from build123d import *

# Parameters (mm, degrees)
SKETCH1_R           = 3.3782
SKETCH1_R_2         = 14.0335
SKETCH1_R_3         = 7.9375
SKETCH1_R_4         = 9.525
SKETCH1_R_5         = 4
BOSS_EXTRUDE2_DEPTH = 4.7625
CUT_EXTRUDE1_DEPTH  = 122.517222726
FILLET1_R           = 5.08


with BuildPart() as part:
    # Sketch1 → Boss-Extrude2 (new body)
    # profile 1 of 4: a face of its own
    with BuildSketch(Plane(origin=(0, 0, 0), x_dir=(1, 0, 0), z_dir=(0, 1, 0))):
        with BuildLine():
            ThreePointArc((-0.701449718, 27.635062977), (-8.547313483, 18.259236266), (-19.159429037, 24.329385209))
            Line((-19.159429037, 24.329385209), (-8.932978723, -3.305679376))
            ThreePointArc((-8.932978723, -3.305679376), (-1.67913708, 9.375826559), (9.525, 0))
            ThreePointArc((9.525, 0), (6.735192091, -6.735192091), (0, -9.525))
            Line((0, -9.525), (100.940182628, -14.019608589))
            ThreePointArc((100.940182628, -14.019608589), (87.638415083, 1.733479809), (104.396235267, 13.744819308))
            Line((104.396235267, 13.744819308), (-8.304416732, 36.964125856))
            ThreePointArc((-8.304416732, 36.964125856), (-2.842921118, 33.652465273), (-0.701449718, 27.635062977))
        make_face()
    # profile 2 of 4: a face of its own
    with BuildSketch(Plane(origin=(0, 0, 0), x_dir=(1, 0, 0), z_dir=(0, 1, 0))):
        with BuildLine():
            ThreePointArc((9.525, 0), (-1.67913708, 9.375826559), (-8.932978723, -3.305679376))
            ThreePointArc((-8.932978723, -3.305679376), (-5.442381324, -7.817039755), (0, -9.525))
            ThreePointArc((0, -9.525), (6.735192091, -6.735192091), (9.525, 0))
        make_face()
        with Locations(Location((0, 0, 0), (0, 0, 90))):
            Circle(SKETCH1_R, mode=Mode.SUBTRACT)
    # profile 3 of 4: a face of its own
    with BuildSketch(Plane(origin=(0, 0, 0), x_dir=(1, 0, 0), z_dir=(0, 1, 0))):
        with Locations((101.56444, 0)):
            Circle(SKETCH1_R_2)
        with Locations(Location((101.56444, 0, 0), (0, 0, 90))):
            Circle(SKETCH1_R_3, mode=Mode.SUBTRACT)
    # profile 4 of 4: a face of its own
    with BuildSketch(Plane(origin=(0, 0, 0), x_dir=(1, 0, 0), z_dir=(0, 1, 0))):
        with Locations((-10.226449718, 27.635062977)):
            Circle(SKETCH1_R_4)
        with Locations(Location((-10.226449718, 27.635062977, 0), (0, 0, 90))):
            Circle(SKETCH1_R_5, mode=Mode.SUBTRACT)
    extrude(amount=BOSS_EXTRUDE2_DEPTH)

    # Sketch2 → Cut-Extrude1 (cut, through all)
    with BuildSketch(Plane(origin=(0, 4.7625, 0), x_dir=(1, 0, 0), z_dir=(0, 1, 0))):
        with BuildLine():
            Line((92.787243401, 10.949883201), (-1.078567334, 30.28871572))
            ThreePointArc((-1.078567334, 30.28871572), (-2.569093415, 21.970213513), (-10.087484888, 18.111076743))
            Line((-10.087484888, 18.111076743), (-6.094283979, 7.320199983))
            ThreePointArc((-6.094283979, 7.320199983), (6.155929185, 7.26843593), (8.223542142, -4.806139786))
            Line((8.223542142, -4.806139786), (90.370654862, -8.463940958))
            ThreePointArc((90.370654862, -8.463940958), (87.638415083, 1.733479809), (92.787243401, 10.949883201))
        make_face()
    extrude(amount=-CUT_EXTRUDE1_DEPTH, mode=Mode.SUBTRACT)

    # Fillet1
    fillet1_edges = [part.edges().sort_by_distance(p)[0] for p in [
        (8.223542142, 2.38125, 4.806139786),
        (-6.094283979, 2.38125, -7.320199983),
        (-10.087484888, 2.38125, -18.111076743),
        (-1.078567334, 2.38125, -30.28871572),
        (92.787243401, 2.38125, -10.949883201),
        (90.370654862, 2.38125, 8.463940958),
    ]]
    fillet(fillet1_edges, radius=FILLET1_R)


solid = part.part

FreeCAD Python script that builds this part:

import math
import FreeCAD as App
import Part
import Sketcher

V = App.Vector
Q = App.Units.Quantity


def edges_at(feature, points):
    """Names of the edges that pass closest to the given points."""
    edges = feature.Shape.Edges
    near = lambda p: min(range(len(edges)), key=lambda i: edges[i].distToShape(Part.Vertex(*p))[0])
    return sorted({f"Edge{near(p) + 1}" for p in points})

doc = App.newDocument("Part")
body = doc.addObject("PartDesign::Body", "Body")

sketch1 = body.newObject("Sketcher::SketchObject", "Sketch")
sketch1.AttachmentSupport = (doc.getObject("XZ_Plane"), [""])
sketch1.MapMode = "FlatFace"
sketch1.addGeometry(Part.LineSegment(V(-19.2, -24.3, 0), V(-8.9, 3.3, 0)), False)
sketch1.addGeometry(Part.ArcOfCircle(Part.Circle(V(0, 0, 0), V(0, 0, 1), 9.5), math.radians(90), math.radians(160)), False)
sketch1.addGeometry(Part.LineSegment(V(0, 9.5, 0), V(100.9, 14, 0)), False)
sketch1.addGeometry(Part.ArcOfCircle(Part.Circle(V(101.6, 0, 0), V(0, 0, 1), 14), math.radians(-78), math.radians(93)), False)
sketch1.addGeometry(Part.LineSegment(V(104.4, -13.7, 0), V(-8.3, -37, 0)), False)
sketch1.addGeometry(Part.ArcOfCircle(Part.Circle(V(-10.2, -27.6, 0), V(0, 0, 1), 9.5), math.radians(160), math.radians(282)), False)
sketch1.addGeometry(Part.Circle(V(-10.2, -27.6, 0), V(0, 0, 1), 4), False)
sketch1.addGeometry(Part.Circle(V(0, 0, 0), V(0, 0, 1), 3.4), False)
sketch1.addGeometry(Part.Circle(V(101.6, 0, 0), V(0, 0, 1), 7.9), False)
sketch1.addConstraint(Sketcher.Constraint("Tangent", 0, 2, 1, 2))
sketch1.addConstraint(Sketcher.Constraint("Coincident", 1, 1, 2, 1))
sketch1.addConstraint(Sketcher.Constraint("Tangent", 2, 2, 3, 2))
sketch1.addConstraint(Sketcher.Constraint("Tangent", 3, 1, 4, 1))
sketch1.addConstraint(Sketcher.Constraint("Tangent", 4, 2, 5, 2))
sketch1.addConstraint(Sketcher.Constraint("Tangent", 5, 1, 0, 1))
sketch1.addConstraint(Sketcher.Constraint("Coincident", 1, 3, -1, 1))
sketch1.addConstraint(Sketcher.Constraint("Coincident", 7, 3, -1, 1))
sketch1.addConstraint(Sketcher.Constraint("Coincident", 6, 3, 5, 3))
sketch1.addConstraint(Sketcher.Constraint("Coincident", 8, 3, 3, 3))
sketch1.addConstraint(Sketcher.Constraint("Equal", 1, 5))
sketch1.addConstraint(Sketcher.Constraint("PointOnObject", 3, 3, -1))
sketch1.addConstraint(Sketcher.Constraint("PointOnObject", 1, 1, -2))
sketch1.addConstraint(Sketcher.Constraint("Diameter", 7, Q("0.266 in")))
sketch1.addConstraint(Sketcher.Constraint("Diameter", 8, Q("0.625 in")))
sketch1.addConstraint(Sketcher.Constraint("Radius", 1, Q("0.375 in")))
sketch1.addConstraint(Sketcher.Constraint("Radius", 3, Q("0.5525 in")))
sketch1.addConstraint(Sketcher.Constraint("Diameter", 6, Q("8 mm")))
sketch1.addConstraint(Sketcher.Constraint("Distance", 0, Q("1.1601001 in")))
sketch1.addConstraint(Sketcher.Constraint("DistanceX", -1, 1, 3, 3, Q("3.9986 in")))
sketch1.addConstraint(Sketcher.Constraint("Distance", 4, Q("115.067689 mm")))
pad1 = body.newObject("PartDesign::Pad", "Pad")
pad1.Profile = sketch1
pad1.Length = Q("0.1875 in")
pad1.Reversed = True

sketch2 = body.newObject("Sketcher::SketchObject", "Sketch001")
sketch2.AttachmentSupport = (doc.getObject("XZ_Plane"), [""])
sketch2.MapMode = "FlatFace"
sketch2.AttachmentOffset = App.Placement(V(0, 0, -0.1875 * 25.4), App.Rotation())
sketch2.addGeometry(Part.LineSegment(V(93, -11, 0), V(-1, -30, 0)), False)
sketch2.addGeometry(Part.ArcOfCircle(Part.Circle(V(-10, -28, 0), V(0, 0, 1), 10), math.radians(-16), math.radians(89)), False)
sketch2.addGeometry(Part.LineSegment(V(-10, -18, 0), V(-6, -7, 0)), False)
sketch2.addGeometry(Part.ArcOfCircle(Part.Circle(V(0, 0, 0), V(0, 0, 1), 10), math.radians(-130), math.radians(30)), False)
sketch2.addGeometry(Part.LineSegment(V(8, 5, 0), V(90, 8, 0)), False)
sketch2.addGeometry(Part.ArcOfCircle(Part.Circle(V(102, 0, 0), V(0, 0, 1), 14), math.radians(143), math.radians(231)), False)
sketch2.addConstraint(Sketcher.Constraint("Coincident", 0, 2, 1, 1))
sketch2.addConstraint(Sketcher.Constraint("Coincident", 1, 2, 2, 1))
sketch2.addConstraint(Sketcher.Constraint("Coincident", 2, 2, 3, 1))
sketch2.addConstraint(Sketcher.Constraint("Coincident", 3, 2, 4, 1))
sketch2.addConstraint(Sketcher.Constraint("Coincident", 4, 2, 5, 1))
sketch2.addConstraint(Sketcher.Constraint("Coincident", 5, 2, 0, 1))
sketch2.addConstraint(Sketcher.Constraint("Coincident", 3, 3, -1, 1))
sketch2.addConstraint(Sketcher.Constraint("Equal", 1, 3))
sketch2.addConstraint(Sketcher.Constraint("PointOnObject", 5, 3, -1))
sketch2.addConstraint(Sketcher.Constraint("Radius", 1, Q("0.375 in")))
sketch2.addConstraint(Sketcher.Constraint("Radius", 5, Q("0.5525 in")))
sketch2.addConstraint(Sketcher.Constraint("DistanceX", -1, 1, 5, 3, Q("3.9986 in")))
sketch2.addConstraint(Sketcher.Constraint("DistanceY", 2, 2, -1, 1, Q("7.3202 mm")))
sketch2.addConstraint(Sketcher.Constraint("DistanceX", 1, 2, 2, 2, Q("3.993201 mm")))
sketch2.addConstraint(Sketcher.Constraint("DistanceY", 3, 2, 4, 2, Q("3.657801 mm")))
sketch2.addConstraint(Sketcher.Constraint("DistanceX", 3, 2, 5, 2, Q("84.563701 mm")))
sketch2.addConstraint(Sketcher.Constraint("Distance", 4, Q("82.228509 mm")))
sketch2.addConstraint(Sketcher.Constraint("DistanceX", 1, 3, -1, 1, Q("10.22645 mm")))
sketch2.addConstraint(Sketcher.Constraint("DistanceY", 0, 2, 1, 2, Q("12.177639 mm")))
sketch2.addConstraint(Sketcher.Constraint("Distance", 0, Q("95.837262 mm")))
pocket1 = body.newObject("PartDesign::Pocket", "Pocket")
pocket1.Profile = sketch2
pocket1.Type = "ThroughAll"
pocket1.Reversed = True
doc.recompute()

fillet = body.newObject("PartDesign::Fillet", "Fillet")
fillet.Base = (pocket1, edges_at(pocket1, [
    (8.224, 2.381, 4.806),
    (-6.094, 2.381, -7.32),
    (-10.087, 2.381, -18.111),
    (-1.079, 2.381, -30.289),
    (92.787, 2.381, -10.95),
    (90.371, 2.381, 8.464),
]))
fillet.Radius = Q("0.2 in")

doc.recompute()
